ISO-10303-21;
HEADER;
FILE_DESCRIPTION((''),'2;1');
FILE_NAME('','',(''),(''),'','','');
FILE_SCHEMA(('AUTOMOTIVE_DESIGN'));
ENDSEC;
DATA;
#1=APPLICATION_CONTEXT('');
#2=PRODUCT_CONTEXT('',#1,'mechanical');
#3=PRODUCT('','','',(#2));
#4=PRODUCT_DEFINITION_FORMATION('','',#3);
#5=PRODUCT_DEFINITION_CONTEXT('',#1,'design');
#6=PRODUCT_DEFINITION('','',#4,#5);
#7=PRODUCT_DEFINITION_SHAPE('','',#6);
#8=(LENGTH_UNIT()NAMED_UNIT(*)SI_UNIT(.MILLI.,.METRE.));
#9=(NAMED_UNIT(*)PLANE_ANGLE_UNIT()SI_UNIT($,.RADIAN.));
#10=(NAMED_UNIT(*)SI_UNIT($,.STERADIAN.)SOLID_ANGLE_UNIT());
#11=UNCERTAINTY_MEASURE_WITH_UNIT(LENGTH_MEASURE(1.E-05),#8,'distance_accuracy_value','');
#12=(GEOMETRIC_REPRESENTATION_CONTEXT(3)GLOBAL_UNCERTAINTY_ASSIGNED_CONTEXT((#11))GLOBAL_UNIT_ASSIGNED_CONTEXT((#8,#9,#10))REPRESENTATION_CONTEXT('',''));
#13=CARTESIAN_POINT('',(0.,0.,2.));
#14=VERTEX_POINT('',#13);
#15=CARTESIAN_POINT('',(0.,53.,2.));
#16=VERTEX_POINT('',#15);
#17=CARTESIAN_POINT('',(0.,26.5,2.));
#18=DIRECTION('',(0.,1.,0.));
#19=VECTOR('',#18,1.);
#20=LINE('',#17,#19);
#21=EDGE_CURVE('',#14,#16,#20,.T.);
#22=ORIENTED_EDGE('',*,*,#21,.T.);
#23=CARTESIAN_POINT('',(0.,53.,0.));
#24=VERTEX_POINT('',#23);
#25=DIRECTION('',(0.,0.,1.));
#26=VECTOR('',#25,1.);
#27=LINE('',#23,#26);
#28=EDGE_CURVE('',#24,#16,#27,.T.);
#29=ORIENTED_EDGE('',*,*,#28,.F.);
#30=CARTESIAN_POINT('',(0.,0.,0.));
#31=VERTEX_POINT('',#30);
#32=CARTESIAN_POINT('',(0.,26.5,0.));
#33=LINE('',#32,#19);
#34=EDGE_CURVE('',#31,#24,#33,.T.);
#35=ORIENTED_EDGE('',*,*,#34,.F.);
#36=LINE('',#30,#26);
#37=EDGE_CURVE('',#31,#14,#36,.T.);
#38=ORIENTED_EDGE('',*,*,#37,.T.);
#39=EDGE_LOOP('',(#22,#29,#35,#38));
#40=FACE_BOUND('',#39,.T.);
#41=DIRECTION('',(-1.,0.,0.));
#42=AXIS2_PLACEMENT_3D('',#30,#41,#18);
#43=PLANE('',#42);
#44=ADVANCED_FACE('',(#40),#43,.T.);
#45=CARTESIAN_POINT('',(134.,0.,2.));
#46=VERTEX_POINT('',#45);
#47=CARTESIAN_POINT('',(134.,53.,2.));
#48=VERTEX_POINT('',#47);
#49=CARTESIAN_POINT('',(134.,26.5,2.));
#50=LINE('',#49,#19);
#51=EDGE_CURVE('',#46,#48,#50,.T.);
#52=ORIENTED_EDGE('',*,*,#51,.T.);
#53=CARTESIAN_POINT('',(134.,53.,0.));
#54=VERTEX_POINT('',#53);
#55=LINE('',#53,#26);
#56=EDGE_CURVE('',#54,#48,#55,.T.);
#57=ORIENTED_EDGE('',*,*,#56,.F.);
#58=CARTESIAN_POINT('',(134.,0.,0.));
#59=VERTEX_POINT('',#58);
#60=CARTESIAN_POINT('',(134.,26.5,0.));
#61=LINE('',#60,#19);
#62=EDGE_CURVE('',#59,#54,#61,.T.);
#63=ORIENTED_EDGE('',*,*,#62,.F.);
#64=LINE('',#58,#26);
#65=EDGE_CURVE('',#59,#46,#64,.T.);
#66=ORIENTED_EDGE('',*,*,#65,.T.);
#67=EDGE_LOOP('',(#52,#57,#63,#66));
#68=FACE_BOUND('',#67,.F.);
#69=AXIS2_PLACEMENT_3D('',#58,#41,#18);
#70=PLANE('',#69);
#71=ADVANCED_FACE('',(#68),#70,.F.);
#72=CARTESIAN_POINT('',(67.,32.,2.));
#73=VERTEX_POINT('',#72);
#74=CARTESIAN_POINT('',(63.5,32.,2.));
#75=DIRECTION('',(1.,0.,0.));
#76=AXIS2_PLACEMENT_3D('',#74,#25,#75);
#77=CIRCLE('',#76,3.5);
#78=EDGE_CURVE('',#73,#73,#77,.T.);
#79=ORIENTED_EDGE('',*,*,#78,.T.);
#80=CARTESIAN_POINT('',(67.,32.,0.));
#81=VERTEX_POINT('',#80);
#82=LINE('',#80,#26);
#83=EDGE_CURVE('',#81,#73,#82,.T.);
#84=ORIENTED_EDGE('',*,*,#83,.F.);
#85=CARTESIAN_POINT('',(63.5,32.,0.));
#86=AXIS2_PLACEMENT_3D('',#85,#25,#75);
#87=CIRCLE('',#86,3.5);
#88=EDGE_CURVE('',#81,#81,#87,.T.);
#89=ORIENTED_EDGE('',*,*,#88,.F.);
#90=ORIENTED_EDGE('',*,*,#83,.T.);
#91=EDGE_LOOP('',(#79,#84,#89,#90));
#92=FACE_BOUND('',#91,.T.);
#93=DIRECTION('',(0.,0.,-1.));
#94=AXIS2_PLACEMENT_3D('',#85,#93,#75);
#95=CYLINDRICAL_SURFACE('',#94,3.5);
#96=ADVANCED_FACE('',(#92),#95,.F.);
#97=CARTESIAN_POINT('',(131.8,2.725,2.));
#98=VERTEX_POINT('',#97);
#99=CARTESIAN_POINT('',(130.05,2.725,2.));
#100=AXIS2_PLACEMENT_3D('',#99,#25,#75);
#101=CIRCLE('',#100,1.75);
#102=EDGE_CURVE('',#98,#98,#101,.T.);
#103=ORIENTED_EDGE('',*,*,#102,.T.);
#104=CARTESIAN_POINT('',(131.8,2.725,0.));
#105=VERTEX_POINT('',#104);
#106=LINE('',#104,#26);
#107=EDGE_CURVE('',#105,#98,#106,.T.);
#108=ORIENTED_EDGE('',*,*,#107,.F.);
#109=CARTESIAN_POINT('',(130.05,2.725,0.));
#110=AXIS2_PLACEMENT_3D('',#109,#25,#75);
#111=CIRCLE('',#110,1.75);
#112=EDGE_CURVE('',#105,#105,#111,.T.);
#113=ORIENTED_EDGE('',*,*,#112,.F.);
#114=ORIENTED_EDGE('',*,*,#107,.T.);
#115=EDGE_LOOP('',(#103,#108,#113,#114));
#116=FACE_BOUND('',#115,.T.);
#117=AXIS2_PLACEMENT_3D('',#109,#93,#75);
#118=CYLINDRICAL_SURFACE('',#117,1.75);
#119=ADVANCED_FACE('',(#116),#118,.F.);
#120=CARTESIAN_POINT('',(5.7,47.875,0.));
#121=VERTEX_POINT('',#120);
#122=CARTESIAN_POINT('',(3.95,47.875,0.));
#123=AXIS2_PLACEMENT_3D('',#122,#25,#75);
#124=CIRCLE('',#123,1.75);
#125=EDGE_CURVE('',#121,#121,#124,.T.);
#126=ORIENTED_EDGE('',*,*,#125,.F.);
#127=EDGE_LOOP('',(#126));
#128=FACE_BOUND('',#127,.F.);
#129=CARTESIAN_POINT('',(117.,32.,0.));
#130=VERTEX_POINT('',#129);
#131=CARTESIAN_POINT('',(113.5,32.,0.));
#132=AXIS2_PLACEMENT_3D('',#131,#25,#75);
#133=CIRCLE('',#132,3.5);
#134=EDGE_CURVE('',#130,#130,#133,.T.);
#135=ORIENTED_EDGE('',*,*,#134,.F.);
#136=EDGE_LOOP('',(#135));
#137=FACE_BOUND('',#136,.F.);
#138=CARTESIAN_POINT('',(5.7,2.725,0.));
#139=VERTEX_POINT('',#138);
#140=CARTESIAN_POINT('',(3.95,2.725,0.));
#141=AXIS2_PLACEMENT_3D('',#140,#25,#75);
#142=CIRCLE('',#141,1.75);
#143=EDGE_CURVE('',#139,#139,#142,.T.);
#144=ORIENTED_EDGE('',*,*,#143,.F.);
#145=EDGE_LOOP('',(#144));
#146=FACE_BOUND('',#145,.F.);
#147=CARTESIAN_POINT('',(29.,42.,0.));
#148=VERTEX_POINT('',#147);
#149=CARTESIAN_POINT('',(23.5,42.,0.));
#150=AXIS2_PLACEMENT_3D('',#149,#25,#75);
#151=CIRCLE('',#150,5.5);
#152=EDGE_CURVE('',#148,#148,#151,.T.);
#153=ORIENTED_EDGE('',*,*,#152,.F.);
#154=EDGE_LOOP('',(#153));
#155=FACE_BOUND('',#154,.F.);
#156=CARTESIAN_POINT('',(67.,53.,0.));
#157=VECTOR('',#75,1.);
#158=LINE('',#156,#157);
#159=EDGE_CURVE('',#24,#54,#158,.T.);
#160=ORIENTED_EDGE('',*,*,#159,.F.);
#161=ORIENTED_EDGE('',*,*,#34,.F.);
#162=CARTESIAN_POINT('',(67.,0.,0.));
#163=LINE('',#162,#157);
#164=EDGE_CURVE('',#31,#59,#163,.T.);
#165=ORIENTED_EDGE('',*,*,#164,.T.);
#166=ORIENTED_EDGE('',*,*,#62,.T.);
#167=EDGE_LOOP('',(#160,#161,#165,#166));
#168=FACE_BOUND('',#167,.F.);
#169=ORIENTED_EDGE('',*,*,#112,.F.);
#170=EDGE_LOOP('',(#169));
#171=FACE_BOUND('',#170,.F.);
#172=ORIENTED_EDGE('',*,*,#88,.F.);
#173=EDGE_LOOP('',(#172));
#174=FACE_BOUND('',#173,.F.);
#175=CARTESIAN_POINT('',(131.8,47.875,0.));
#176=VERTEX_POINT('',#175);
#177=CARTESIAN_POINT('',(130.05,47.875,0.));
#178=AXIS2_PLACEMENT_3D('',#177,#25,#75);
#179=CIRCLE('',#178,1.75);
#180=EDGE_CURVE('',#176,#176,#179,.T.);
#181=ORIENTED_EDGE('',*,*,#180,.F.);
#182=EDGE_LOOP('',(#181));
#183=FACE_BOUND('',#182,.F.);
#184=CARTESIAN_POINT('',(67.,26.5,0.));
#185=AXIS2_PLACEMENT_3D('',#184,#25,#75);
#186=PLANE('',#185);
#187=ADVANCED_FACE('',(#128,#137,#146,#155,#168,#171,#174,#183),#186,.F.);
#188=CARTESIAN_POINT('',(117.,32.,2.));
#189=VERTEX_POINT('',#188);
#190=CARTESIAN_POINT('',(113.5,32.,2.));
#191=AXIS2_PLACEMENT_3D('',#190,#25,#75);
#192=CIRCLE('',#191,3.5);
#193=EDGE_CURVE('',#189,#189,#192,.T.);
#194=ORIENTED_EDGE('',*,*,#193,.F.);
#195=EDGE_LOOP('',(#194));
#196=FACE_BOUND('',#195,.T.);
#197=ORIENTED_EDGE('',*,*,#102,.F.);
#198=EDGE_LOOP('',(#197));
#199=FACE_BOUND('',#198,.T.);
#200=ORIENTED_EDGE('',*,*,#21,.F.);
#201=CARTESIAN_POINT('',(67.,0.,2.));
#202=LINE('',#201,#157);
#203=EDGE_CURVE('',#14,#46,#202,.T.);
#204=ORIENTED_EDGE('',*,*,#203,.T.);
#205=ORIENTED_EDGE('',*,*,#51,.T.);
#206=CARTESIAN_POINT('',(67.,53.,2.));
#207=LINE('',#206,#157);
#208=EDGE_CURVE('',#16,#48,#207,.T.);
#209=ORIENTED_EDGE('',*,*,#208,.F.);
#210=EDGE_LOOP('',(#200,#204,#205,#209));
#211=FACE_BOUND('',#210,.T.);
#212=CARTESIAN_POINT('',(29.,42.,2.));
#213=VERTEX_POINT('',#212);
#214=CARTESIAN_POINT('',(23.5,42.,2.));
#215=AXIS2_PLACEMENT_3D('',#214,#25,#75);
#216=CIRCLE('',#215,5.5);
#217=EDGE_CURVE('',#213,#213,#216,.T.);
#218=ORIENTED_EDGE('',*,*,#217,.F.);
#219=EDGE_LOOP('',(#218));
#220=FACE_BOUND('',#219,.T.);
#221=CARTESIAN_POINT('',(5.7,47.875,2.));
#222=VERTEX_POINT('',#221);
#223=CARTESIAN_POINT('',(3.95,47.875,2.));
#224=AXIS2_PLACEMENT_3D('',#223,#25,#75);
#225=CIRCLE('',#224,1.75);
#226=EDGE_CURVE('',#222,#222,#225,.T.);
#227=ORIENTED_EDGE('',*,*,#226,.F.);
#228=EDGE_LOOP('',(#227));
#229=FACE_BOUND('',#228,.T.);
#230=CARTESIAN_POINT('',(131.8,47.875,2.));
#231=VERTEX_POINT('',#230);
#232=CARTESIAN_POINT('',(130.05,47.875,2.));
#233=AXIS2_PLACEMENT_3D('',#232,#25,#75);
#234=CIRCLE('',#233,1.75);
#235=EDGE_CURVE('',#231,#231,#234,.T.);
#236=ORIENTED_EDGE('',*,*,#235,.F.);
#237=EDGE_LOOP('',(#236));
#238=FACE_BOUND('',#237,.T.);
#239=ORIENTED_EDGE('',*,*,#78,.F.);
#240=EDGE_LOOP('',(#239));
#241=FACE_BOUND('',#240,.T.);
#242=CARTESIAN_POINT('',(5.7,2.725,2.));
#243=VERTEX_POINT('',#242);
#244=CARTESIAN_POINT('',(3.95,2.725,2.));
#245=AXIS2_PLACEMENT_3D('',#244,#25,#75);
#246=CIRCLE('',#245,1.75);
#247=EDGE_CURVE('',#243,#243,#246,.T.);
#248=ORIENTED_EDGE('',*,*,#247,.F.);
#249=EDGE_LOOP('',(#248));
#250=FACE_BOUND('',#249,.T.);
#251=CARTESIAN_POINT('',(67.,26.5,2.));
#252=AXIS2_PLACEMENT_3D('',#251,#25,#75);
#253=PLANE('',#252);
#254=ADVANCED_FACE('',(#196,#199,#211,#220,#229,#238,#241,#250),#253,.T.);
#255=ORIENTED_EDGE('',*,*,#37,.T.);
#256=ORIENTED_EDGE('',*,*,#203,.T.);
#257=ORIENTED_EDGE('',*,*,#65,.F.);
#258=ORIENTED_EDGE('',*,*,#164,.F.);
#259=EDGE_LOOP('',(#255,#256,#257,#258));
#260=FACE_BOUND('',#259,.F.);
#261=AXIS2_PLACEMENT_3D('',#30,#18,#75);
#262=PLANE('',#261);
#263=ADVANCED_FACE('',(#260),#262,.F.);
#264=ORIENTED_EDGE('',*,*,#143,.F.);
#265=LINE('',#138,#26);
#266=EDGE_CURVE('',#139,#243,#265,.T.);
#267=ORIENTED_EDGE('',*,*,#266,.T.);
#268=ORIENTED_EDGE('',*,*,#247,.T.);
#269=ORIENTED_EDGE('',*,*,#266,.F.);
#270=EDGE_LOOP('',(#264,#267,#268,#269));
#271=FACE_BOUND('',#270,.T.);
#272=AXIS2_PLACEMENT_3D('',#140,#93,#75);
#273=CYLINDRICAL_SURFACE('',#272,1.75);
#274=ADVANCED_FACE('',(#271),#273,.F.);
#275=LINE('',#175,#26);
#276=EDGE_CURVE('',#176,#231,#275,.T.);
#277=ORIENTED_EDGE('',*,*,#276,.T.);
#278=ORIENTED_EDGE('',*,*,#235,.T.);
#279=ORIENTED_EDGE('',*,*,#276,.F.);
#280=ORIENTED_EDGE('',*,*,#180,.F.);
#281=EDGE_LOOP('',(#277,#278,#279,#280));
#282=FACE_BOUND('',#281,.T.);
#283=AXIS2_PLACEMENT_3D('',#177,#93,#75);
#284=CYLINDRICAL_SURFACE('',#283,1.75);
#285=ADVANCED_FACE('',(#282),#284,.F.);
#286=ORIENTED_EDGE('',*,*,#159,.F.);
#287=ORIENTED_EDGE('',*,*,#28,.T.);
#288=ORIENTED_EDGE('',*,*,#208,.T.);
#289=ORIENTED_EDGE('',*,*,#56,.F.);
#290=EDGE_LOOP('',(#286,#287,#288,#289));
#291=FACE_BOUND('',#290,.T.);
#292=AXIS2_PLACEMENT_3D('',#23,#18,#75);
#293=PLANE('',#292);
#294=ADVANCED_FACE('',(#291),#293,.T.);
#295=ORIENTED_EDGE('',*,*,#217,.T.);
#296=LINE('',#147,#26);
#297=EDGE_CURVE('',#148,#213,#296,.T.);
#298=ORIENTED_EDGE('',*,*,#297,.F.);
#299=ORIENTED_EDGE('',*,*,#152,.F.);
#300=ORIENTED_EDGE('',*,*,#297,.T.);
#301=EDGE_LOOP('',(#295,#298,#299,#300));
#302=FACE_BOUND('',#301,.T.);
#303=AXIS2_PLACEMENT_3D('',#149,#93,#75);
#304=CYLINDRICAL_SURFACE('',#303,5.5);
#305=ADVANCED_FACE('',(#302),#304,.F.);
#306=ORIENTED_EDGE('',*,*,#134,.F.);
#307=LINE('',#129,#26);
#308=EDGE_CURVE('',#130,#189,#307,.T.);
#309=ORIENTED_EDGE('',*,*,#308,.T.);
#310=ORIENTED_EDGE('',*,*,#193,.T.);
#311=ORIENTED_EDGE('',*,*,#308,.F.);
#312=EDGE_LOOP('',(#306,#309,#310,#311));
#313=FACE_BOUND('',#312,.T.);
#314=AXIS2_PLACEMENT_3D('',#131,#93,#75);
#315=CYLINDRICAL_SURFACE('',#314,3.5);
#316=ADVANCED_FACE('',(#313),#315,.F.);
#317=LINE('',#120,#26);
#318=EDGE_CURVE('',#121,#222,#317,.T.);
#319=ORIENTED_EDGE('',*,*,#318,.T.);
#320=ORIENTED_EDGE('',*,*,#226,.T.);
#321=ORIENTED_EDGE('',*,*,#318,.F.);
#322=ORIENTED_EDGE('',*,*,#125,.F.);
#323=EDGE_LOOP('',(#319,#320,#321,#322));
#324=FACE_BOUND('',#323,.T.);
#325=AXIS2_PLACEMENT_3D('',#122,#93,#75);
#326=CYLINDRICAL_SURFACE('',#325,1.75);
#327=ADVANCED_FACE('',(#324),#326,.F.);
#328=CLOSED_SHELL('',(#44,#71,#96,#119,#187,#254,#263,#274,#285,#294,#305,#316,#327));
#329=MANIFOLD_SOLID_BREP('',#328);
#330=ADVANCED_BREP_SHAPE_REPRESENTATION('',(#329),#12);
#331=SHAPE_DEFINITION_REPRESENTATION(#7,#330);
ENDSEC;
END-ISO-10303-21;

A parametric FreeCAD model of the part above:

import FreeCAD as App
import Part
import Sketcher

V = App.Vector

doc = App.newDocument("Part")
body = doc.addObject("PartDesign::Body", "Body")

# Sketch on XY plane
sketch1 = body.newObject("Sketcher::SketchObject", "Sketch")
sketch1.AttachmentSupport = (doc.getObject("XY_Plane"), [""])
sketch1.MapMode = "FlatFace"
sketch1.addGeometry([
    Part.LineSegment(V(0, 53, 0), V(0, 0, 0)),  # 0
    Part.LineSegment(V(0, 0, 0), V(134, 0, 0)),  # 1
    Part.LineSegment(V(134, 0, 0), V(134, 53, 0)),  # 2
    Part.LineSegment(V(134, 53, 0), V(0, 53, 0)),  # 3
    Part.Circle(V(4, 2.7, 0), V(0, 0, 1), 1.8),  # 4
    Part.Circle(V(130.1, 2.7, 0), V(0, 0, 1), 1.8),  # 5
    Part.Circle(V(63.5, 32, 0), V(0, 0, 1), 3.5),  # 6
    Part.Circle(V(23.5, 42, 0), V(0, 0, 1), 5.5),  # 7
    Part.Circle(V(4, 47.9, 0), V(0, 0, 1), 1.8),  # 8
    Part.Circle(V(113.5, 32, 0), V(0, 0, 1), 3.5),  # 9
    Part.Circle(V(130.1, 47.9, 0), V(0, 0, 1), 1.8),  # 10
], False)
sketch1.addConstraint([
    Sketcher.Constraint("Coincident", 0, 2, 1, 1),
    Sketcher.Constraint("Coincident", 1, 2, 2, 1),
    Sketcher.Constraint("Coincident", 2, 2, 3, 1),
    Sketcher.Constraint("Coincident", 3, 2, 0, 1),
    Sketcher.Constraint("Vertical", 0),
    Sketcher.Constraint("Horizontal", 1),
    Sketcher.Constraint("Vertical", 2),
    Sketcher.Constraint("Horizontal", 3),
    Sketcher.Constraint("Coincident", 0, 2, -1, 1),
    Sketcher.Constraint("Equal", 4, 5),
    Sketcher.Constraint("Equal", 5, 8),
    Sketcher.Constraint("Equal", 6, 9),
    Sketcher.Constraint("Equal", 8, 10),
    Sketcher.Constraint("Horizontal", 4, 3, 5, 3),
    Sketcher.Constraint("Horizontal", 6, 3, 9, 3),
    Sketcher.Constraint("Horizontal", 8, 3, 10, 3),
    Sketcher.Constraint("Vertical", 4, 3, 8, 3),
    Sketcher.Constraint("Vertical", 5, 3, 10, 3),
    Sketcher.Constraint("Diameter", 6, 7.0),
    Sketcher.Constraint("Diameter", 7, 11.0),
    Sketcher.Constraint("Diameter", 4, 3.5),
    Sketcher.Constraint("DistanceX", 1, 1, 1, 2, 134.0),
    Sketcher.Constraint("DistanceY", 0, 2, 0, 1, 53.0),
    Sketcher.Constraint("DistanceY", -1, 1, 6, 3, 32.0),
    Sketcher.Constraint("DistanceY", -1, 1, 7, 3, 42.0),
    Sketcher.Constraint("DistanceX", 7, 3, 6, 3, 40.0),
    Sketcher.Constraint("DistanceX", 6, 3, 9, 3, 50.0),
    Sketcher.Constraint("DistanceX", -1, 1, 6, 3, 63.5),
    Sketcher.Constraint("DistanceX", 4, 3, 5, 3, 126.1),
    Sketcher.Constraint("DistanceX", -1, 1, 4, 3, 3.95),
    Sketcher.Constraint("DistanceY", 4, 3, 8, 3, 45.15),
    Sketcher.Constraint("DistanceY", -1, 1, 4, 3, 2.725),
])
pad1 = body.newObject("PartDesign::Pad", "Pad")
pad1.Profile = sketch1
pad1.Length = 2

doc.recompute()
